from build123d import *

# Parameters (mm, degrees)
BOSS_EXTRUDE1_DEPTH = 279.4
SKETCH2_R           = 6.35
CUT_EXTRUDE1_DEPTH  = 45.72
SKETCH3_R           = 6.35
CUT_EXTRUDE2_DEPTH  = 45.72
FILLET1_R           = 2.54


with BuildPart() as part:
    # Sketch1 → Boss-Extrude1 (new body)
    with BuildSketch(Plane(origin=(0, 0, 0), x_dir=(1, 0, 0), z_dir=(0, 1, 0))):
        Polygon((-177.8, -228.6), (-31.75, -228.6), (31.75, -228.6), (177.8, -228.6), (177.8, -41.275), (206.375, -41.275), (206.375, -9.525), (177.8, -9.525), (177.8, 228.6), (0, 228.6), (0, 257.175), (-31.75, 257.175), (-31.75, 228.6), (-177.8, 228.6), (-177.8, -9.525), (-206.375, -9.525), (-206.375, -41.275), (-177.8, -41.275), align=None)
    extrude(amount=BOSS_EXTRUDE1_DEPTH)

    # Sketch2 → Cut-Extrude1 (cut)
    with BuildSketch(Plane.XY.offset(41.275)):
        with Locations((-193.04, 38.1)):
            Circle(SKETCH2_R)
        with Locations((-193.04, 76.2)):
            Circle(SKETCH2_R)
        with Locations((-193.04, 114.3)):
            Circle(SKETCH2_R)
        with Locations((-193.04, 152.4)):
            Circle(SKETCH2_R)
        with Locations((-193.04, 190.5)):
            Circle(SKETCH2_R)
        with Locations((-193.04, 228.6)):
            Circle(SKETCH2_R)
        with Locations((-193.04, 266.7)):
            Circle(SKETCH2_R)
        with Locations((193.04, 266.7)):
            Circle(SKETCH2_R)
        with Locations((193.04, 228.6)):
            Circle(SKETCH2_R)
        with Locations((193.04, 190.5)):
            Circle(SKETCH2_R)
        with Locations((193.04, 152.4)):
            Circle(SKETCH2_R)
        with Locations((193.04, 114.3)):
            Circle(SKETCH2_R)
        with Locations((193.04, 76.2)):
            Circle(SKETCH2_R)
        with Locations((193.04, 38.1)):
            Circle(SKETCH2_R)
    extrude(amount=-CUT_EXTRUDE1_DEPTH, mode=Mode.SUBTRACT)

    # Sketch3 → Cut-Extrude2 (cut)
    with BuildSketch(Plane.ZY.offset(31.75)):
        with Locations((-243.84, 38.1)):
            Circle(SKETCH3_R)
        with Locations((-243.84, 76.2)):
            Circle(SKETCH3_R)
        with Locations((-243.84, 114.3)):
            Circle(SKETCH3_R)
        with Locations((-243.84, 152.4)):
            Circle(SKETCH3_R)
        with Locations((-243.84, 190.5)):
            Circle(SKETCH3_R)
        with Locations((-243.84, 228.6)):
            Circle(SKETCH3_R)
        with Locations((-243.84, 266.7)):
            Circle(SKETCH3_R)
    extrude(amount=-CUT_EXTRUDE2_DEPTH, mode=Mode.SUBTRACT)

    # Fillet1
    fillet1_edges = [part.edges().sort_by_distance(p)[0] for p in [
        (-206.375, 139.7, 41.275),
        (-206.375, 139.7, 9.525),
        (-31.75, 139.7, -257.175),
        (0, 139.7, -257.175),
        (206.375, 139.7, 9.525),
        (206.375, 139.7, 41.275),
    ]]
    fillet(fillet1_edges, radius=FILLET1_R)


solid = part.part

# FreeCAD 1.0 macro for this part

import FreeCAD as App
import Part
import Sketcher
from FreeCAD import Vector
Q = App.Units.Quantity


def edges_at(feature, points):
    """Names of the edges that pass closest to the given points."""
    edges = feature.Shape.Edges
    near = lambda p: min(range(len(edges)), key=lambda i: edges[i].distToShape(Part.Vertex(*p))[0])
    return sorted({f"Edge{near(p) + 1}" for p in points})

doc = App.newDocument("Part")
body = doc.addObject("PartDesign::Body", "Body")

# Sketch on XZ plane
sketch1 = body.newObject("Sketcher::SketchObject", "Sketch")
sketch1.AttachmentSupport = (doc.getObject("XZ_Plane"), [""])
sketch1.MapMode = "FlatFace"
sketch1.addGeometry(Part.LineSegment(Vector(-178, 229, 0), Vector(178, 229, 0)), False)
sketch1.addGeometry(Part.LineSegment(Vector(178, 229, 0), Vector(178, 41, 0)), False)
sketch1.addGeometry(Part.LineSegment(Vector(178, 41, 0), Vector(206, 41, 0)), False)
sketch1.addGeometry(Part.LineSegment(Vector(206, 41, 0), Vector(206, 10, 0)), False)
sketch1.addGeometry(Part.LineSegment(Vector(206, 10, 0), Vector(178, 10, 0)), False)
sketch1.addGeometry(Part.LineSegment(Vector(178, 10, 0), Vector(178, -229, 0)), False)
sketch1.addGeometry(Part.LineSegment(Vector(178, -229, 0), Vector(0, -229, 0)), False)
sketch1.addGeometry(Part.LineSegment(Vector(0, -229, 0), Vector(0, -257, 0)), False)
sketch1.addGeometry(Part.LineSegment(Vector(0, -257, 0), Vector(-32, -257, 0)), False)
sketch1.addGeometry(Part.LineSegment(Vector(-32, -257, 0), Vector(-32, -229, 0)), False)
sketch1.addGeometry(Part.LineSegment(Vector(-32, -229, 0), Vector(-178, -229, 0)), False)
sketch1.addGeometry(Part.LineSegment(Vector(-178, -229, 0), Vector(-178, 10, 0)), False)
sketch1.addGeometry(Part.LineSegment(Vector(-178, 10, 0), Vector(-206, 10, 0)), False)
sketch1.addGeometry(Part.LineSegment(Vector(-206, 10, 0), Vector(-206, 41, 0)), False)
sketch1.addGeometry(Part.LineSegment(Vector(-206, 41, 0), Vector(-178, 41, 0)), False)
sketch1.addGeometry(Part.LineSegment(Vector(-178, 41, 0), Vector(-178, 229, 0)), False)
sketch1.addConstraint(Sketcher.Constraint("Coincident", 0, 2, 1, 1))
sketch1.addConstraint(Sketcher.Constraint("Coincident", 1, 2, 2, 1))
sketch1.addConstraint(Sketcher.Constraint("Coincident", 2, 2, 3, 1))
sketch1.addConstraint(Sketcher.Constraint("Coincident", 3, 2, 4, 1))
sketch1.addConstraint(Sketcher.Constraint("Coincident", 4, 2, 5, 1))
sketch1.addConstraint(Sketcher.Constraint("Coincident", 5, 2, 6, 1))
sketch1.addConstraint(Sketcher.Constraint("Coincident", 6, 2, 7, 1))
sketch1.addConstraint(Sketcher.Constraint("Coincident", 7, 2, 8, 1))
sketch1.addConstraint(Sketcher.Constraint("Coincident", 8, 2, 9, 1))
sketch1.addConstraint(Sketcher.Constraint("Coincident", 9, 2, 10, 1))
sketch1.addConstraint(Sketcher.Constraint("Coincident", 10, 2, 11, 1))
sketch1.addConstraint(Sketcher.Constraint("Coincident", 11, 2, 12, 1))
sketch1.addConstraint(Sketcher.Constraint("Coincident", 12, 2, 13, 1))
sketch1.addConstraint(Sketcher.Constraint("Coincident", 13, 2, 14, 1))
sketch1.addConstraint(Sketcher.Constraint("Coincident", 14, 2, 15, 1))
sketch1.addConstraint(Sketcher.Constraint("Coincident", 15, 2, 0, 1))
sketch1.addConstraint(Sketcher.Constraint("Horizontal", 0))
sketch1.addConstraint(Sketcher.Constraint("Vertical", 1))
sketch1.addConstraint(Sketcher.Constraint("Horizontal", 2))
sketch1.addConstraint(Sketcher.Constraint("Vertical", 3))
sketch1.addConstraint(Sketcher.Constraint("Horizontal", 4))
sketch1.addConstraint(Sketcher.Constraint("Vertical", 5))
sketch1.addConstraint(Sketcher.Constraint("Horizontal", 6))
sketch1.addConstraint(Sketcher.Constraint("Vertical", 7))
sketch1.addConstraint(Sketcher.Constraint("Horizontal", 8))
sketch1.addConstraint(Sketcher.Constraint("Vertical", 9))
sketch1.addConstraint(Sketcher.Constraint("Horizontal", 10))
sketch1.addConstraint(Sketcher.Constraint("Vertical", 11))
sketch1.addConstraint(Sketcher.Constraint("Horizontal", 12))
sketch1.addConstraint(Sketcher.Constraint("Vertical", 13))
sketch1.addConstraint(Sketcher.Constraint("Horizontal", 14))
sketch1.addConstraint(Sketcher.Constraint("Vertical", 15))
sketch1.addConstraint(Sketcher.Constraint("Symmetric", 0, 2, 10, 2, -1, 1))
sketch1.addConstraint(Sketcher.Constraint("Symmetric", 5, 2, 15, 2, -1, 1))
sketch1.addConstraint(Sketcher.Constraint("Symmetric", 4, 2, 11, 2, -2))
sketch1.addConstraint(Sketcher.Constraint("Symmetric", 2, 2, 13, 2, -2))
sketch1.addConstraint(Sketcher.Constraint("PointOnObject", 6, 2, -2))
sketch1.addConstraint(Sketcher.Constraint("Equal", 8, 3))
sketch1.addConstraint(Sketcher.Constraint("Equal", 14, 7))
sketch1.addConstraint(Sketcher.Constraint("DistanceX", 0, 1, 0, 2, Q("14 in")))
sketch1.addConstraint(Sketcher.Constraint("DistanceY", -1, 1, 0, 2, Q("9 in")))
sketch1.addConstraint(Sketcher.Constraint("DistanceX", 8, 2, 8, 1, Q("1.25 in")))
sketch1.addConstraint(Sketcher.Constraint("DistanceY", 7, 2, 4, 2, Q("10.5 in")))
sketch1.addConstraint(Sketcher.Constraint("DistanceX", 2, 1, 2, 2, Q("1.125 in")))
pad1 = body.newObject("PartDesign::Pad", "Pad")
pad1.Profile = sketch1
pad1.Length = Q("11 in")
pad1.Reversed = True

# Sketch on XY plane
sketch2 = body.newObject("Sketcher::SketchObject", "Sketch001")
sketch2.AttachmentSupport = (doc.getObject("XY_Plane"), [""])
sketch2.MapMode = "FlatFace"
sketch2.AttachmentOffset = App.Placement(Vector(0, 0, 1.625 * 25.4), App.Rotation())
sketch2.addGeometry(Part.Circle(Vector(-193, 38, 0), Vector(0, 0, 1), 6), False)
sketch2.addGeometry(Part.Circle(Vector(-193, 76, 0), Vector(0, 0, 1), 6), False)
sketch2.addGeometry(Part.Circle(Vector(-193, 114, 0), Vector(0, 0, 1), 6), False)
sketch2.addGeometry(Part.Circle(Vector(-193, 152, 0), Vector(0, 0, 1), 6), False)
sketch2.addGeometry(Part.Circle(Vector(-193, 190, 0), Vector(0, 0, 1), 6), False)
sketch2.addGeometry(Part.Circle(Vector(-193, 229, 0), Vector(0, 0, 1), 6), False)
sketch2.addGeometry(Part.Circle(Vector(-193, 267, 0), Vector(0, 0, 1), 6), False)
sketch2.addGeometry(Part.Circle(Vector(193, 267, 0), Vector(0, 0, 1), 6), False)
sketch2.addGeometry(Part.Circle(Vector(193, 229, 0), Vector(0, 0, 1), 6), False)
sketch2.addGeometry(Part.Circle(Vector(193, 190, 0), Vector(0, 0, 1), 6), False)
sketch2.addGeometry(Part.Circle(Vector(193, 152, 0), Vector(0, 0, 1), 6), False)
sketch2.addGeometry(Part.Circle(Vector(193, 114, 0), Vector(0, 0, 1), 6), False)
sketch2.addGeometry(Part.Circle(Vector(193, 76, 0), Vector(0, 0, 1), 6), False)
sketch2.addGeometry(Part.Circle(Vector(193, 38, 0), Vector(0, 0, 1), 6), False)
sketch2.addConstraint(Sketcher.Constraint("Equal", 0, 1))
sketch2.addConstraint(Sketcher.Constraint("Equal", 1, 2))
sketch2.addConstraint(Sketcher.Constraint("Equal", 2, 3))
sketch2.addConstraint(Sketcher.Constraint("Equal", 3, 4))
sketch2.addConstraint(Sketcher.Constraint("Equal", 4, 5))
sketch2.addConstraint(Sketcher.Constraint("Equal", 5, 6))
sketch2.addConstraint(Sketcher.Constraint("Equal", 6, 7))
sketch2.addConstraint(Sketcher.Constraint("Equal", 7, 8))
sketch2.addConstraint(Sketcher.Constraint("Equal", 8, 9))
sketch2.addConstraint(Sketcher.Constraint("Equal", 9, 10))
sketch2.addConstraint(Sketcher.Constraint("Equal", 10, 11))
sketch2.addConstraint(Sketcher.Constraint("Equal", 11, 12))
sketch2.addConstraint(Sketcher.Constraint("Equal", 12, 13))
sketch2.addConstraint(Sketcher.Constraint("Symmetric", 6, 3, 7, 3, -2))
sketch2.addConstraint(Sketcher.Constraint("Symmetric", 5, 3, 8, 3, -2))
sketch2.addConstraint(Sketcher.Constraint("Symmetric", 4, 3, 9, 3, -2))
sketch2.addConstraint(Sketcher.Constraint("Symmetric", 3, 3, 10, 3, -2))
sketch2.addConstraint(Sketcher.Constraint("Symmetric", 2, 3, 11, 3, -2))
sketch2.addConstraint(Sketcher.Constraint("Symmetric", 1, 3, 12, 3, -2))
sketch2.addConstraint(Sketcher.Constraint("Symmetric", 0, 3, 13, 3, -2))
sketch2.addConstraint(Sketcher.Constraint("Vertical", 0, 3, 1, 3))
sketch2.addConstraint(Sketcher.Constraint("Vertical", 1, 3, 2, 3))
sketch2.addConstraint(Sketcher.Constraint("Vertical", 2, 3, 3, 3))
sketch2.addConstraint(Sketcher.Constraint("Vertical", 3, 3, 4, 3))
sketch2.addConstraint(Sketcher.Constraint("Vertical", 4, 3, 5, 3))
sketch2.addConstraint(Sketcher.Constraint("Vertical", 5, 3, 6, 3))
sketch2.addConstraint(Sketcher.Constraint("Diameter", 0, Q("0.5 in")))
sketch2.addConstraint(Sketcher.Constraint("DistanceY", -1, 1, 1, 3, Q("3 in")))
sketch2.addConstraint(Sketcher.Constraint("DistanceY", -1, 1, 3, 3, Q("6 in")))
sketch2.addConstraint(Sketcher.Constraint("DistanceY", -1, 1, 5, 3, Q("9 in")))
sketch2.addConstraint(Sketcher.Constraint("DistanceY", 0, 3, 2, 3, Q("3 in")))
sketch2.addConstraint(Sketcher.Constraint("DistanceY", 2, 3, 4, 3, Q("3 in")))
sketch2.addConstraint(Sketcher.Constraint("DistanceY", 4, 3, 6, 3, Q("3 in")))
sketch2.addConstraint(Sketcher.Constraint("DistanceX", 0, 3, -1, 1, Q("7.6 in")))
sketch2.addConstraint(Sketcher.Constraint("DistanceY", -1, 1, 0, 3, Q("1.5 in")))
pocket1 = body.newObject("PartDesign::Pocket", "Pocket")
pocket1.Profile = sketch2
pocket1.Length = Q("1.8 in")

# Sketch on YZ plane
sketch3 = body.newObject("Sketcher::SketchObject", "Sketch002")
sketch3.AttachmentSupport = (doc.getObject("YZ_Plane"), [""])
sketch3.MapMode = "FlatFace"
sketch3.AttachmentOffset = App.Placement(Vector(0, 0, -1.25 * 25.4), App.Rotation())
sketch3.addGeometry(Part.Circle(Vector(38, -244, 0), Vector(0, 0, 1), 6), False)
sketch3.addGeometry(Part.Circle(Vector(76, -244, 0), Vector(0, 0, 1), 6), False)
sketch3.addGeometry(Part.Circle(Vector(114, -244, 0), Vector(0, 0, 1), 6), False)
sketch3.addGeometry(Part.Circle(Vector(152, -244, 0), Vector(0, 0, 1), 6), False)
sketch3.addGeometry(Part.Circle(Vector(190, -244, 0), Vector(0, 0, 1), 6), False)
sketch3.addGeometry(Part.Circle(Vector(229, -244, 0), Vector(0, 0, 1), 6), False)
sketch3.addGeometry(Part.Circle(Vector(267, -244, 0), Vector(0, 0, 1), 6), False)
sketch3.addConstraint(Sketcher.Constraint("Equal", 0, 1))
sketch3.addConstraint(Sketcher.Constraint("Equal", 1, 2))
sketch3.addConstraint(Sketcher.Constraint("Equal", 2, 3))
sketch3.addConstraint(Sketcher.Constraint("Equal", 3, 4))
sketch3.addConstraint(Sketcher.Constraint("Equal", 4, 5))
sketch3.addConstraint(Sketcher.Constraint("Equal", 5, 6))
sketch3.addConstraint(Sketcher.Constraint("Horizontal", 0, 3, 1, 3))
sketch3.addConstraint(Sketcher.Constraint("Horizontal", 1, 3, 2, 3))
sketch3.addConstraint(Sketcher.Constraint("Horizontal", 2, 3, 3, 3))
sketch3.addConstraint(Sketcher.Constraint("Horizontal", 3, 3, 4, 3))
sketch3.addConstraint(Sketcher.Constraint("Horizontal", 4, 3, 5, 3))
sketch3.addConstraint(Sketcher.Constraint("Horizontal", 5, 3, 6, 3))
sketch3.addConstraint(Sketcher.Constraint("Diameter", 0, Q("0.5 in")))
sketch3.addConstraint(Sketcher.Constraint("DistanceX", -1, 1, 1, 3, Q("3 in")))
sketch3.addConstraint(Sketcher.Constraint("DistanceX", -1, 1, 3, 3, Q("6 in")))
sketch3.addConstraint(Sketcher.Constraint("DistanceX", -1, 1, 5, 3, Q("9 in")))
sketch3.addConstraint(Sketcher.Constraint("DistanceX", 0, 3, 2, 3, Q("3 in")))
sketch3.addConstraint(Sketcher.Constraint("DistanceX", 2, 3, 4, 3, Q("3 in")))
sketch3.addConstraint(Sketcher.Constraint("DistanceX", 4, 3, 6, 3, Q("3 in")))
sketch3.addConstraint(Sketcher.Constraint("DistanceX", -1, 1, 0, 3, Q("1.5 in")))
sketch3.addConstraint(Sketcher.Constraint("DistanceY", 0, 3, -1, 1, Q("9.6 in")))
pocket2 = body.newObject("PartDesign::Pocket", "Pocket001")
pocket2.Profile = sketch3
pocket2.Length = Q("1.8 in")
pocket2.Reversed = True
doc.recompute()

fillet = body.newObject("PartDesign::Fillet", "Fillet")
fillet.Base = (pocket2, edges_at(pocket2, [
    (-206.375, 139.7, 41.275),
    (-206.375, 139.7, 9.525),
    (-31.75, 139.7, -257.175),
    (0, 139.7, -257.175),
    (206.375, 139.7, 9.525),
    (206.375, 139.7, 41.275),
]))
fillet.Radius = Q("0.1 in")

doc.recompute()
